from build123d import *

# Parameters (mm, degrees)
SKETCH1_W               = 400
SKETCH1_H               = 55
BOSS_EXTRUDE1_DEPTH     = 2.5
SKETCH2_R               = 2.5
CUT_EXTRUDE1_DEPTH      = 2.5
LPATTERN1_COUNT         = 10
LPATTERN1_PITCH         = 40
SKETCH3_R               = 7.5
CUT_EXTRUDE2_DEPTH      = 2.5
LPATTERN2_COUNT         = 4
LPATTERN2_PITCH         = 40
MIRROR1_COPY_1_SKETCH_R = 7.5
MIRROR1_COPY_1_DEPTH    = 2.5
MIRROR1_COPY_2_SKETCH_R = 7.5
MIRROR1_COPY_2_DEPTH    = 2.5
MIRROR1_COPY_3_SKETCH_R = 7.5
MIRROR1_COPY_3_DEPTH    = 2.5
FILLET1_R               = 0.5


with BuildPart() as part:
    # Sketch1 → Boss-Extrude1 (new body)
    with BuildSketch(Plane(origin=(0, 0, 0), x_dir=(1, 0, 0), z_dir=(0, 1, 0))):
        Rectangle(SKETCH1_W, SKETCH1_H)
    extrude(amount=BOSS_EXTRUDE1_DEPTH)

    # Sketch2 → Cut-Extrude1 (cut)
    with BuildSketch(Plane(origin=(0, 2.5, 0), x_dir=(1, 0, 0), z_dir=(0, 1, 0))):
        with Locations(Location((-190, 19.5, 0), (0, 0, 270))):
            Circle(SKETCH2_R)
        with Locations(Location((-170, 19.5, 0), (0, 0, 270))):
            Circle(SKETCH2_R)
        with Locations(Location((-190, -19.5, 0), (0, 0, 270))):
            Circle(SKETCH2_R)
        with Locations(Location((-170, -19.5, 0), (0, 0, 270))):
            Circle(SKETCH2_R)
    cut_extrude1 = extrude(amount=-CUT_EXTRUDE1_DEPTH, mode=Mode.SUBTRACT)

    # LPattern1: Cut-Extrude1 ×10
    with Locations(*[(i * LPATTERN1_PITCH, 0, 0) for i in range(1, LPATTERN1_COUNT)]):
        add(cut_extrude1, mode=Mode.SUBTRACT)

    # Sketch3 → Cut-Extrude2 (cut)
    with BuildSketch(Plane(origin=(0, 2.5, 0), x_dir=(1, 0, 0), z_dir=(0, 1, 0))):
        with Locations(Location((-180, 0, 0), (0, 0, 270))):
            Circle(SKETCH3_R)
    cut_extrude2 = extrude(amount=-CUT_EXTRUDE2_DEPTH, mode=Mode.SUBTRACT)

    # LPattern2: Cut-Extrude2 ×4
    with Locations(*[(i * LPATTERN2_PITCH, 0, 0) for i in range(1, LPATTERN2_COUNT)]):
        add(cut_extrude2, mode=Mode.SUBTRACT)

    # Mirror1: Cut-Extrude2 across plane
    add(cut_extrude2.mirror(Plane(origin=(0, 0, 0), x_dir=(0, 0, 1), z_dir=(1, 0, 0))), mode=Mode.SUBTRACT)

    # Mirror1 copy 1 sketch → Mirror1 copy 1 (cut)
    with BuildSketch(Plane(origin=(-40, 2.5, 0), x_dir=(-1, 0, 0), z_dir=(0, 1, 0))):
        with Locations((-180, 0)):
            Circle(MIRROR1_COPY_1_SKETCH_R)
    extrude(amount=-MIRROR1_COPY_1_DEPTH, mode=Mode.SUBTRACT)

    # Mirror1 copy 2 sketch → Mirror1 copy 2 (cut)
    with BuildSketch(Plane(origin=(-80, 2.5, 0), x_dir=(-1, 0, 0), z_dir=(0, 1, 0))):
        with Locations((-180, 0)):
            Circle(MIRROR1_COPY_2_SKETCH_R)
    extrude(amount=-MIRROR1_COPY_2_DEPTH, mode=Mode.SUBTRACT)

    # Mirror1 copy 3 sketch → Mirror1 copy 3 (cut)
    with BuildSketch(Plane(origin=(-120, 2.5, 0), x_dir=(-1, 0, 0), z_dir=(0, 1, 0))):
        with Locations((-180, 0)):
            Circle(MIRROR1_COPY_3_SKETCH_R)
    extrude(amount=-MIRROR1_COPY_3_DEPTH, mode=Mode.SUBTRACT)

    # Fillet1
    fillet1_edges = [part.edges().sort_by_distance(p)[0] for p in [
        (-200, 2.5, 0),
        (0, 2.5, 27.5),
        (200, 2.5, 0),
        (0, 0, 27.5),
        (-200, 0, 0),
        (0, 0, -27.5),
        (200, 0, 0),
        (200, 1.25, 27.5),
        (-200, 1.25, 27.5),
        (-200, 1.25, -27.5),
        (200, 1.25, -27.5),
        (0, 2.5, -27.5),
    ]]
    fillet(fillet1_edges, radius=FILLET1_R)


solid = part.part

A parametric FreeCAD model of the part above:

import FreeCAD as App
import Part
import Sketcher

V = App.Vector
Q = App.Units.Quantity


def edges_at(feature, points):
    """Names of the edges that pass closest to the given points."""
    edges = feature.Shape.Edges
    near = lambda p: min(range(len(edges)), key=lambda i: edges[i].distToShape(Part.Vertex(*p))[0])
    return sorted({f"Edge{near(p) + 1}" for p in points})


def add_polygon(sketch, points):
    """Adds a closed chain of lines whose ends are joined by coincident constraints."""
    first, n = sketch.GeometryCount, len(points)
    for a, b in zip(points, points[1:] + points[:1]):
        sketch.addGeometry(Part.LineSegment(App.Vector(*a, 0), App.Vector(*b, 0)), False)
    for i in range(n):
        sketch.addConstraint(Sketcher.Constraint("Coincident", first + i, 2, first + (i + 1) % n, 1))

doc = App.newDocument("Part")
body = doc.addObject("PartDesign::Body", "Body")

# Sketch on XZ plane
sketch1 = body.newObject("Sketcher::SketchObject", "Sketch")
sketch1.AttachmentSupport = (doc.getObject("XZ_Plane"), [""])
sketch1.MapMode = "FlatFace"
add_polygon(sketch1, [(-200, -27.5), (-200, 27.5), (200, 27.5), (200, -27.5)])  # lines 0-3
sketch1.addConstraint([
    Sketcher.Constraint("Vertical", 0),
    Sketcher.Constraint("Horizontal", 1),
    Sketcher.Constraint("Vertical", 2),
    Sketcher.Constraint("Horizontal", 3),
    Sketcher.Constraint("Symmetric", 0, 2, 2, 2, -1, 1),
    Sketcher.Constraint("DistanceX", 1, 1, 1, 2, Q("400 mm")),
    Sketcher.Constraint("DistanceY", 0, 1, 0, 2, Q("55 mm")),
])
pad1 = body.newObject("PartDesign::Pad", "Pad")
pad1.Profile = sketch1
pad1.Length = 2.5
pad1.Reversed = True

# Sketch on XZ plane
sketch2 = body.newObject("Sketcher::SketchObject", "Sketch001")
sketch2.AttachmentSupport = (doc.getObject("XZ_Plane"), [""])
sketch2.MapMode = "FlatFace"
sketch2.AttachmentOffset = App.Placement(V(0, 0, -2.5), App.Rotation())
sketch2.addGeometry([
    Part.Circle(V(-190, -19.5, 0), V(0, 0, 1), 2.5),
    Part.Circle(V(-170, -19.5, 0), V(0, 0, 1), 2.5),
    Part.Circle(V(-190, 19.5, 0), V(0, 0, 1), 2.5),
    Part.Circle(V(-170, 19.5, 0), V(0, 0, 1), 2.5),
], False)
sketch2.addConstraint([
    Sketcher.Constraint("Equal", 0, 1),
    Sketcher.Constraint("Equal", 1, 2),
    Sketcher.Constraint("Equal", 2, 3),
    Sketcher.Constraint("Symmetric", 0, 3, 2, 3, -1),
    Sketcher.Constraint("Symmetric", 1, 3, 3, 3, -1),
    Sketcher.Constraint("Horizontal", 0, 3, 1, 3),
    Sketcher.Constraint("Diameter", 0, Q("5 mm")),
    Sketcher.Constraint("DistanceX", 0, 3, -1, 1, Q("190 mm")),
    Sketcher.Constraint("DistanceX", 1, 3, -1, 1, Q("170 mm")),
    Sketcher.Constraint("DistanceY", 0, 3, 2, 3, Q("39 mm")),
])
pocket1 = body.newObject("PartDesign::Pocket", "Pocket")
pocket1.Profile = sketch2
pocket1.Length = 2.5
pocket1.Reversed = True
doc.recompute()

linearpattern = body.newObject("PartDesign::LinearPattern", "LinearPattern")
linearpattern.Originals = [pocket1]
linearpattern.Direction = (doc.getObject("X_Axis"), [""])
linearpattern.Mode = "offset"
linearpattern.Offset = 40
linearpattern.Occurrences = 10
body.Tip = linearpattern

# Sketch on XZ plane
sketch3 = body.newObject("Sketcher::SketchObject", "Sketch002")
sketch3.AttachmentSupport = (doc.getObject("XZ_Plane"), [""])
sketch3.MapMode = "FlatFace"
sketch3.AttachmentOffset = App.Placement(V(0, 0, -2.5), App.Rotation())
sketch3.addGeometry(Part.Circle(V(-180, 0, 0), V(0, 0, 1), 7.5), False)
sketch3.addConstraint([
    Sketcher.Constraint("PointOnObject", 0, 3, -1),
    Sketcher.Constraint("Diameter", 0, Q("15 mm")),
    Sketcher.Constraint("DistanceX", 0, 3, -1, 1, Q("180 mm")),
])
pocket2 = body.newObject("PartDesign::Pocket", "Pocket001")
pocket2.Profile = sketch3
pocket2.Length = 2.5
pocket2.Reversed = True
doc.recompute()

linearpattern2 = body.newObject("PartDesign::LinearPattern", "LinearPattern001")
linearpattern2.Originals = [pocket2]
linearpattern2.Direction = (doc.getObject("X_Axis"), [""])
linearpattern2.Mode = "offset"
linearpattern2.Offset = 40
linearpattern2.Occurrences = 4
body.Tip = linearpattern2
doc.recompute()

mirrored = body.newObject("PartDesign::Mirrored", "Mirrored")
mirrored.Originals = [pocket2]
mirrored.MirrorPlane = (doc.getObject("YZ_Plane"), [""])
body.Tip = mirrored

# Sketch on XZ plane
sketch4 = body.newObject("Sketcher::SketchObject", "Sketch003")
sketch4.AttachmentSupport = (doc.getObject("XZ_Plane"), [""])
sketch4.MapMode = "FlatFace"
sketch4.AttachmentOffset = App.Placement(V(0, 0, -2.5), App.Rotation())
sketch4.addGeometry(Part.Circle(V(140, 0, 0), V(0, 0, 1), 7.5), False)
sketch4.addConstraint([
    Sketcher.Constraint("PointOnObject", 0, 3, -1),
    Sketcher.Constraint("Diameter", 0, Q("15 mm")),
    Sketcher.Constraint("DistanceX", -1, 1, 0, 3, Q("140 mm")),
])
pocket3 = body.newObject("PartDesign::Pocket", "Pocket002")
pocket3.Profile = sketch4
pocket3.Length = 2.5
pocket3.Reversed = True

# Sketch on XZ plane
sketch5 = body.newObject("Sketcher::SketchObject", "Sketch004")
sketch5.AttachmentSupport = (doc.getObject("XZ_Plane"), [""])
sketch5.MapMode = "FlatFace"
sketch5.AttachmentOffset = App.Placement(V(0, 0, -2.5), App.Rotation())
sketch5.addGeometry(Part.Circle(V(100, 0, 0), V(0, 0, 1), 7.5), False)
sketch5.addConstraint([
    Sketcher.Constraint("PointOnObject", 0, 3, -1),
    Sketcher.Constraint("Diameter", 0, Q("15 mm")),
    Sketcher.Constraint("DistanceX", -1, 1, 0, 3, Q("100 mm")),
])
pocket4 = body.newObject("PartDesign::Pocket", "Pocket003")
pocket4.Profile = sketch5
pocket4.Length = 2.5
pocket4.Reversed = True

# Sketch on XZ plane
sketch6 = body.newObject("Sketcher::SketchObject", "Sketch005")
sketch6.AttachmentSupport = (doc.getObject("XZ_Plane"), [""])
sketch6.MapMode = "FlatFace"
sketch6.AttachmentOffset = App.Placement(V(0, 0, -2.5), App.Rotation())
sketch6.addGeometry(Part.Circle(V(60, 0, 0), V(0, 0, 1), 7.5), False)
sketch6.addConstraint([
    Sketcher.Constraint("PointOnObject", 0, 3, -1),
    Sketcher.Constraint("Diameter", 0, Q("15 mm")),
    Sketcher.Constraint("DistanceX", -1, 1, 0, 3, Q("60 mm")),
])
pocket5 = body.newObject("PartDesign::Pocket", "Pocket004")
pocket5.Profile = sketch6
pocket5.Length = 2.5
pocket5.Reversed = True
doc.recompute()

fillet = body.newObject("PartDesign::Fillet", "Fillet")
fillet.Base = (pocket5, edges_at(pocket5, [
    (-200, 2.5, 0),
    (0, 2.5, 27.5),
    (200, 2.5, 0),
    (0, 0, 27.5),
    (-200, 0, 0),
    (0, 0, -27.5),
    (200, 0, 0),
    (200, 1.25, 27.5),
    (-200, 1.25, 27.5),
    (-200, 1.25, -27.5),
    (200, 1.25, -27.5),
    (0, 2.5, -27.5),
]))
fillet.Radius = 0.5

doc.recompute()
